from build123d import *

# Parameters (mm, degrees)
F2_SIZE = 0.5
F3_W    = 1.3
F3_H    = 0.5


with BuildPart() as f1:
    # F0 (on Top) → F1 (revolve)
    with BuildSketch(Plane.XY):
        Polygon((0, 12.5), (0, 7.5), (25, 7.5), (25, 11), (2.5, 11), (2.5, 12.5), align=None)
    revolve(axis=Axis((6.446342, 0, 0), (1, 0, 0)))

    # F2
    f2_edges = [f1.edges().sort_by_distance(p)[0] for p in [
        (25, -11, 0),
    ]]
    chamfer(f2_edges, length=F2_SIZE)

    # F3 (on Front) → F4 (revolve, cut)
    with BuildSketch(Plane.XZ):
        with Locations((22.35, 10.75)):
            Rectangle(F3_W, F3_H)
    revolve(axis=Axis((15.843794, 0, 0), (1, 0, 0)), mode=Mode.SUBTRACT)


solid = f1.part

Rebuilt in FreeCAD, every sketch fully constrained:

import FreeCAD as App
import Part
import Sketcher

V = App.Vector


def edges_at(feature, points):
    """Names of the edges that pass closest to the given points."""
    edges = feature.Shape.Edges
    near = lambda p: min(range(len(edges)), key=lambda i: edges[i].distToShape(Part.Vertex(*p))[0])
    return sorted({f"Edge{near(p) + 1}" for p in points})

doc = App.newDocument("Part")
body = doc.addObject("PartDesign::Body", "Body")

# Sketch on XY plane
sketch1 = doc.addObject("Sketcher::SketchObject", "Sketch")
body.addObject(sketch1)
sketch1.AttachmentSupport = (doc.XY_Plane, [""])
sketch1.MapMode = "FlatFace"
sketch1.addGeometry([
    Part.LineSegment(V(0, 12.5, 0), V(0, 7.5, 0)),  # 0
    Part.LineSegment(V(0, 7.5, 0), V(25, 7.5, 0)),  # 1
    Part.LineSegment(V(25, 7.5, 0), V(25, 11, 0)),  # 2
    Part.LineSegment(V(25, 11, 0), V(2.5, 11, 0)),  # 3
    Part.LineSegment(V(2.5, 11, 0), V(2.5, 12.5, 0)),  # 4
    Part.LineSegment(V(2.5, 12.5, 0), V(0, 12.5, 0)),  # 5
], False)
sketch1.addConstraint([
    Sketcher.Constraint("Coincident", 0, 2, 1, 1),
    Sketcher.Constraint("Coincident", 1, 2, 2, 1),
    Sketcher.Constraint("Coincident", 2, 2, 3, 1),
    Sketcher.Constraint("Coincident", 3, 2, 4, 1),
    Sketcher.Constraint("Coincident", 4, 2, 5, 1),
    Sketcher.Constraint("Coincident", 5, 2, 0, 1),
    Sketcher.Constraint("Vertical", 0),
    Sketcher.Constraint("Horizontal", 1),
    Sketcher.Constraint("Vertical", 2),
    Sketcher.Constraint("Horizontal", 3),
    Sketcher.Constraint("Vertical", 4),
    Sketcher.Constraint("Horizontal", 5),
    Sketcher.Constraint("PointOnObject", 0, 2, -2),
    Sketcher.Constraint("DistanceX", 1, 1, 1, 2, 25.0),
    Sketcher.Constraint("DistanceY", 0, 2, 0, 1, 5.0),
    Sketcher.Constraint("DistanceX", 3, 2, 3, 1, 22.5),
    Sketcher.Constraint("DistanceY", 2, 1, 2, 2, 3.5),
    Sketcher.Constraint("DistanceY", -1, 1, 2, 2, 11.0),
])
revolution = doc.addObject("PartDesign::Revolution", "Revolution")
body.addObject(revolution)
revolution.Profile = sketch1
revolution.ReferenceAxis = (sketch1, ["H_Axis"])
revolution.Angle = 360
doc.recompute()

chamfer = doc.addObject("PartDesign::Chamfer", "Chamfer")
body.addObject(chamfer)
chamfer.Base = (revolution, edges_at(revolution, [(25, -11, 0)]))
chamfer.Size = 0.5

# Sketch on XZ plane
sketch2 = doc.addObject("Sketcher::SketchObject", "Sketch001")
body.addObject(sketch2)
sketch2.AttachmentSupport = (doc.XZ_Plane, [""])
sketch2.MapMode = "FlatFace"
sketch2.addGeometry([
    Part.LineSegment(V(21.7, 11, 0), V(21.7, 10.5, 0)),
    Part.LineSegment(V(21.7, 10.5, 0), V(23, 10.5, 0)),
    Part.LineSegment(V(23, 10.5, 0), V(23, 11, 0)),
    Part.LineSegment(V(23, 11, 0), V(21.7, 11, 0)),
], False)
sketch2.addConstraint([
    Sketcher.Constraint("Coincident", 0, 2, 1, 1),
    Sketcher.Constraint("Coincident", 1, 2, 2, 1),
    Sketcher.Constraint("Coincident", 2, 2, 3, 1),
    Sketcher.Constraint("Coincident", 3, 2, 0, 1),
    Sketcher.Constraint("Vertical", 0),
    Sketcher.Constraint("Horizontal", 1),
    Sketcher.Constraint("Vertical", 2),
    Sketcher.Constraint("Horizontal", 3),
    Sketcher.Constraint("DistanceX", 1, 1, 1, 2, 1.3),
    Sketcher.Constraint("DistanceY", 0, 2, 0, 1, 0.5),
    Sketcher.Constraint("DistanceX", -1, 1, 1, 2, 23.0),
    Sketcher.Constraint("DistanceY", -1, 1, 2, 2, 11.0),
])
groove = doc.addObject("PartDesign::Groove", "Groove")
body.addObject(groove)
groove.Profile = sketch2
groove.ReferenceAxis = (sketch2, ["H_Axis"])
groove.Angle = 360

doc.recompute()
